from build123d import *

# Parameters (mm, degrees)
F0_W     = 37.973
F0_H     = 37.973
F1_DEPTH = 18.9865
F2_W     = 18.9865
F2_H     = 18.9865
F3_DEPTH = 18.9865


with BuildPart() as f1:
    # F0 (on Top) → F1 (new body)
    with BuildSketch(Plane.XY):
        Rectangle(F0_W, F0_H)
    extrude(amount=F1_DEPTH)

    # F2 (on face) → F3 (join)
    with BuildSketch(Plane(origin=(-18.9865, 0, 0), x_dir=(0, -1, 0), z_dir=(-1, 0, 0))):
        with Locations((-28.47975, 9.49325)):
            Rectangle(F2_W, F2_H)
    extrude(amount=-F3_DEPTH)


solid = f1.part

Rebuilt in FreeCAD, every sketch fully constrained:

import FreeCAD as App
import Part
import Sketcher
from FreeCAD import Vector
Q = App.Units.Quantity


def add_polygon(sketch, points):
    """Adds a closed chain of lines whose ends are joined by coincident constraints."""
    first, n = sketch.GeometryCount, len(points)
    for a, b in zip(points, points[1:] + points[:1]):
        sketch.addGeometry(Part.LineSegment(App.Vector(*a, 0), App.Vector(*b, 0)), False)
    for i in range(n):
        sketch.addConstraint(Sketcher.Constraint("Coincident", first + i, 2, first + (i + 1) % n, 1))

doc = App.newDocument("Part")
body = doc.addObject("PartDesign::Body", "Body")

sketch1 = body.newObject("Sketcher::SketchObject", "Sketch")
sketch1.AttachmentSupport = (doc.getObject("XY_Plane"), [""])
sketch1.MapMode = "FlatFace"
add_polygon(sketch1, [(-18.9865, 18.9865), (-18.9865, -18.9865), (18.9865, -18.9865), (18.9865, 18.9865)])
sketch1.addConstraint([
    Sketcher.Constraint("Vertical", 0),
    Sketcher.Constraint("Horizontal", 1),
    Sketcher.Constraint("Vertical", 2),
    Sketcher.Constraint("Horizontal", 3),
    Sketcher.Constraint("Symmetric", 0, 2, 2, 2, -1, 1),
    Sketcher.Constraint("Equal", 3, 0),
    Sketcher.Constraint("DistanceX", 1, 1, 1, 2, Q("1.495 in")),
])
pad1 = body.newObject("PartDesign::Pad", "Pad")
pad1.Profile = sketch1
pad1.Length = Q("0.7475 in")

sketch2 = body.newObject("Sketcher::SketchObject", "Sketch001")
sketch2.AttachmentSupport = (doc.getObject("YZ_Plane"), [""])
sketch2.MapMode = "FlatFace"
sketch2.AttachmentOffset = App.Placement(Vector(0, 0, -0.7475 * 25.4), App.Rotation())
add_polygon(sketch2, [(37.973, 18.9865), (37.973, 0), (18.9865, 0), (18.9865, 18.9865)])
sketch2.addConstraint([
    Sketcher.Constraint("Vertical", 0),
    Sketcher.Constraint("Horizontal", 1),
    Sketcher.Constraint("Vertical", 2),
    Sketcher.Constraint("Horizontal", 3),
    Sketcher.Constraint("PointOnObject", 0, 2, -1),
    Sketcher.Constraint("Equal", 3, 0),
    Sketcher.Constraint("DistanceX", 1, 2, 1, 1, Q("0.7475 in")),
    Sketcher.Constraint("DistanceX", -1, 1, 0, 2, Q("1.495 in")),
])
pad2 = body.newObject("PartDesign::Pad", "Pad001")
pad2.Profile = sketch2
pad2.Length = Q("0.7475 in")

doc.recompute()
